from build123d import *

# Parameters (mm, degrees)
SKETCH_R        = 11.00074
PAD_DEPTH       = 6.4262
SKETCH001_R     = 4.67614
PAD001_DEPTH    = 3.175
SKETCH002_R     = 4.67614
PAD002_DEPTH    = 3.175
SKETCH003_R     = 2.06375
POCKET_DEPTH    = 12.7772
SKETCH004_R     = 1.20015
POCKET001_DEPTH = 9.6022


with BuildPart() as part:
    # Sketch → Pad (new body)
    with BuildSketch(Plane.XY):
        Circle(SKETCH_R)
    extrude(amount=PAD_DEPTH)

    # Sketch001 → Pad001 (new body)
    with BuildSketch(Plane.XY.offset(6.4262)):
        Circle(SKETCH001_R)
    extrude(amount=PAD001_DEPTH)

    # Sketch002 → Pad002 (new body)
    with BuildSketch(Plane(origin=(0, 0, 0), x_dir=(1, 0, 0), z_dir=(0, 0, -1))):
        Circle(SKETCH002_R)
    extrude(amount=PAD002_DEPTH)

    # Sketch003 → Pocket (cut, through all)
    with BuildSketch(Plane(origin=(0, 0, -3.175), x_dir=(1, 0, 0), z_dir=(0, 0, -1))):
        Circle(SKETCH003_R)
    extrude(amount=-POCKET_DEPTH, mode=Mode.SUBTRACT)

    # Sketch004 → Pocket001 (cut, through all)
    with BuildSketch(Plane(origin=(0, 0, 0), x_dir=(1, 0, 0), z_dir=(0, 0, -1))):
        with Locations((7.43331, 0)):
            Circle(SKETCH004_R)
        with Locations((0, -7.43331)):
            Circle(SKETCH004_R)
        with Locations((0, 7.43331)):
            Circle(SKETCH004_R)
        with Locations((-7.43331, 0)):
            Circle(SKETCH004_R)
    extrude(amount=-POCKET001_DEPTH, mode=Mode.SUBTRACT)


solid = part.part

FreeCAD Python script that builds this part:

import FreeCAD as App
import Part
import Sketcher
from FreeCAD import Vector
Q = App.Units.Quantity

doc = App.newDocument("Part")
body = doc.addObject("PartDesign::Body", "Body")

# Sketch on XY plane
sketch1 = doc.addObject("Sketcher::SketchObject", "Sketch")
body.addObject(sketch1)
sketch1.AttachmentSupport = (doc.XY_Plane, [""])
sketch1.MapMode = "FlatFace"
sketch1.addGeometry(Part.Circle(Vector(0, 0, 0), Vector(0, 0, 1), 11), False)
sketch1.addConstraint(Sketcher.Constraint("Coincident", 0, 3, -1, 1))
sketch1.addConstraint(Sketcher.Constraint("Diameter", 0, Q("0.8662 in")))
pad1 = doc.addObject("PartDesign::Pad", "Pad")
body.addObject(pad1)
pad1.Profile = sketch1
pad1.Length = Q("0.253 in")

# Sketch on XY plane
sketch2 = doc.addObject("Sketcher::SketchObject", "Sketch001")
body.addObject(sketch2)
sketch2.AttachmentSupport = (doc.XY_Plane, [""])
sketch2.MapMode = "FlatFace"
sketch2.AttachmentOffset = App.Placement(Vector(0, 0, 0.253 * 25.4), App.Rotation())
sketch2.addGeometry(Part.Circle(Vector(0, 0, 0), Vector(0, 0, 1), 4.7), False)
sketch2.addConstraint(Sketcher.Constraint("Coincident", 0, 3, -1, 1))
sketch2.addConstraint(Sketcher.Constraint("Diameter", 0, Q("0.3682 in")))
pad2 = doc.addObject("PartDesign::Pad", "Pad001")
body.addObject(pad2)
pad2.Profile = sketch2
pad2.Length = Q("0.125 in")

# Sketch on XY plane
sketch3 = doc.addObject("Sketcher::SketchObject", "Sketch002")
body.addObject(sketch3)
sketch3.AttachmentSupport = (doc.XY_Plane, [""])
sketch3.MapMode = "FlatFace"
sketch3.addGeometry(Part.Circle(Vector(0, 0, 0), Vector(0, 0, 1), 4.7), False)
sketch3.addConstraint(Sketcher.Constraint("Coincident", 0, 3, -1, 1))
sketch3.addConstraint(Sketcher.Constraint("Diameter", 0, Q("0.3682 in")))
pad3 = doc.addObject("PartDesign::Pad", "Pad002")
body.addObject(pad3)
pad3.Profile = sketch3
pad3.Length = Q("0.125 in")
pad3.Reversed = True

# Sketch on XY plane
sketch4 = doc.addObject("Sketcher::SketchObject", "Sketch003")
body.addObject(sketch4)
sketch4.AttachmentSupport = (doc.XY_Plane, [""])
sketch4.MapMode = "FlatFace"
sketch4.AttachmentOffset = App.Placement(Vector(0, 0, -0.125 * 25.4), App.Rotation())
sketch4.addGeometry(Part.Circle(Vector(0, 0, 0), Vector(0, 0, 1), 2.1), False)
sketch4.addConstraint(Sketcher.Constraint("Coincident", 0, 3, -1, 1))
sketch4.addConstraint(Sketcher.Constraint("Diameter", 0, Q("0.1625 in")))
pocket1 = doc.addObject("PartDesign::Pocket", "Pocket")
body.addObject(pocket1)
pocket1.Profile = sketch4
pocket1.Type = "ThroughAll"
pocket1.Reversed = True

# Sketch on XY plane
sketch5 = doc.addObject("Sketcher::SketchObject", "Sketch004")
body.addObject(sketch5)
sketch5.AttachmentSupport = (doc.XY_Plane, [""])
sketch5.MapMode = "FlatFace"
sketch5.addGeometry(Part.Circle(Vector(7.4, 0, 0), Vector(0, 0, 1), 1.2), False)
sketch5.addGeometry(Part.Circle(Vector(0, 7.4, 0), Vector(0, 0, 1), 1.2), False)
sketch5.addGeometry(Part.Circle(Vector(0, -7.4, 0), Vector(0, 0, 1), 1.2), False)
sketch5.addGeometry(Part.Circle(Vector(-7.4, 0, 0), Vector(0, 0, 1), 1.2), False)
sketch5.addConstraint(Sketcher.Constraint("Equal", 0, 1))
sketch5.addConstraint(Sketcher.Constraint("Equal", 1, 2))
sketch5.addConstraint(Sketcher.Constraint("Equal", 2, 3))
sketch5.addConstraint(Sketcher.Constraint("Symmetric", 1, 3, 2, 3, -1, 1))
sketch5.addConstraint(Sketcher.Constraint("Symmetric", 0, 3, 3, 3, -1, 1))
sketch5.addConstraint(Sketcher.Constraint("PointOnObject", 0, 3, -1))
sketch5.addConstraint(Sketcher.Constraint("PointOnObject", 1, 3, -2))
sketch5.addConstraint(Sketcher.Constraint("Diameter", 0, Q("0.0945 in")))
sketch5.addConstraint(Sketcher.Constraint("DistanceY", 2, 3, 1, 3, Q("0.5853 in")))
sketch5.addConstraint(Sketcher.Constraint("DistanceX", 3, 3, 0, 3, Q("0.5853 in")))
pocket2 = doc.addObject("PartDesign::Pocket", "Pocket001")
body.addObject(pocket2)
pocket2.Profile = sketch5
pocket2.Type = "ThroughAll"
pocket2.Reversed = True

doc.recompute()
